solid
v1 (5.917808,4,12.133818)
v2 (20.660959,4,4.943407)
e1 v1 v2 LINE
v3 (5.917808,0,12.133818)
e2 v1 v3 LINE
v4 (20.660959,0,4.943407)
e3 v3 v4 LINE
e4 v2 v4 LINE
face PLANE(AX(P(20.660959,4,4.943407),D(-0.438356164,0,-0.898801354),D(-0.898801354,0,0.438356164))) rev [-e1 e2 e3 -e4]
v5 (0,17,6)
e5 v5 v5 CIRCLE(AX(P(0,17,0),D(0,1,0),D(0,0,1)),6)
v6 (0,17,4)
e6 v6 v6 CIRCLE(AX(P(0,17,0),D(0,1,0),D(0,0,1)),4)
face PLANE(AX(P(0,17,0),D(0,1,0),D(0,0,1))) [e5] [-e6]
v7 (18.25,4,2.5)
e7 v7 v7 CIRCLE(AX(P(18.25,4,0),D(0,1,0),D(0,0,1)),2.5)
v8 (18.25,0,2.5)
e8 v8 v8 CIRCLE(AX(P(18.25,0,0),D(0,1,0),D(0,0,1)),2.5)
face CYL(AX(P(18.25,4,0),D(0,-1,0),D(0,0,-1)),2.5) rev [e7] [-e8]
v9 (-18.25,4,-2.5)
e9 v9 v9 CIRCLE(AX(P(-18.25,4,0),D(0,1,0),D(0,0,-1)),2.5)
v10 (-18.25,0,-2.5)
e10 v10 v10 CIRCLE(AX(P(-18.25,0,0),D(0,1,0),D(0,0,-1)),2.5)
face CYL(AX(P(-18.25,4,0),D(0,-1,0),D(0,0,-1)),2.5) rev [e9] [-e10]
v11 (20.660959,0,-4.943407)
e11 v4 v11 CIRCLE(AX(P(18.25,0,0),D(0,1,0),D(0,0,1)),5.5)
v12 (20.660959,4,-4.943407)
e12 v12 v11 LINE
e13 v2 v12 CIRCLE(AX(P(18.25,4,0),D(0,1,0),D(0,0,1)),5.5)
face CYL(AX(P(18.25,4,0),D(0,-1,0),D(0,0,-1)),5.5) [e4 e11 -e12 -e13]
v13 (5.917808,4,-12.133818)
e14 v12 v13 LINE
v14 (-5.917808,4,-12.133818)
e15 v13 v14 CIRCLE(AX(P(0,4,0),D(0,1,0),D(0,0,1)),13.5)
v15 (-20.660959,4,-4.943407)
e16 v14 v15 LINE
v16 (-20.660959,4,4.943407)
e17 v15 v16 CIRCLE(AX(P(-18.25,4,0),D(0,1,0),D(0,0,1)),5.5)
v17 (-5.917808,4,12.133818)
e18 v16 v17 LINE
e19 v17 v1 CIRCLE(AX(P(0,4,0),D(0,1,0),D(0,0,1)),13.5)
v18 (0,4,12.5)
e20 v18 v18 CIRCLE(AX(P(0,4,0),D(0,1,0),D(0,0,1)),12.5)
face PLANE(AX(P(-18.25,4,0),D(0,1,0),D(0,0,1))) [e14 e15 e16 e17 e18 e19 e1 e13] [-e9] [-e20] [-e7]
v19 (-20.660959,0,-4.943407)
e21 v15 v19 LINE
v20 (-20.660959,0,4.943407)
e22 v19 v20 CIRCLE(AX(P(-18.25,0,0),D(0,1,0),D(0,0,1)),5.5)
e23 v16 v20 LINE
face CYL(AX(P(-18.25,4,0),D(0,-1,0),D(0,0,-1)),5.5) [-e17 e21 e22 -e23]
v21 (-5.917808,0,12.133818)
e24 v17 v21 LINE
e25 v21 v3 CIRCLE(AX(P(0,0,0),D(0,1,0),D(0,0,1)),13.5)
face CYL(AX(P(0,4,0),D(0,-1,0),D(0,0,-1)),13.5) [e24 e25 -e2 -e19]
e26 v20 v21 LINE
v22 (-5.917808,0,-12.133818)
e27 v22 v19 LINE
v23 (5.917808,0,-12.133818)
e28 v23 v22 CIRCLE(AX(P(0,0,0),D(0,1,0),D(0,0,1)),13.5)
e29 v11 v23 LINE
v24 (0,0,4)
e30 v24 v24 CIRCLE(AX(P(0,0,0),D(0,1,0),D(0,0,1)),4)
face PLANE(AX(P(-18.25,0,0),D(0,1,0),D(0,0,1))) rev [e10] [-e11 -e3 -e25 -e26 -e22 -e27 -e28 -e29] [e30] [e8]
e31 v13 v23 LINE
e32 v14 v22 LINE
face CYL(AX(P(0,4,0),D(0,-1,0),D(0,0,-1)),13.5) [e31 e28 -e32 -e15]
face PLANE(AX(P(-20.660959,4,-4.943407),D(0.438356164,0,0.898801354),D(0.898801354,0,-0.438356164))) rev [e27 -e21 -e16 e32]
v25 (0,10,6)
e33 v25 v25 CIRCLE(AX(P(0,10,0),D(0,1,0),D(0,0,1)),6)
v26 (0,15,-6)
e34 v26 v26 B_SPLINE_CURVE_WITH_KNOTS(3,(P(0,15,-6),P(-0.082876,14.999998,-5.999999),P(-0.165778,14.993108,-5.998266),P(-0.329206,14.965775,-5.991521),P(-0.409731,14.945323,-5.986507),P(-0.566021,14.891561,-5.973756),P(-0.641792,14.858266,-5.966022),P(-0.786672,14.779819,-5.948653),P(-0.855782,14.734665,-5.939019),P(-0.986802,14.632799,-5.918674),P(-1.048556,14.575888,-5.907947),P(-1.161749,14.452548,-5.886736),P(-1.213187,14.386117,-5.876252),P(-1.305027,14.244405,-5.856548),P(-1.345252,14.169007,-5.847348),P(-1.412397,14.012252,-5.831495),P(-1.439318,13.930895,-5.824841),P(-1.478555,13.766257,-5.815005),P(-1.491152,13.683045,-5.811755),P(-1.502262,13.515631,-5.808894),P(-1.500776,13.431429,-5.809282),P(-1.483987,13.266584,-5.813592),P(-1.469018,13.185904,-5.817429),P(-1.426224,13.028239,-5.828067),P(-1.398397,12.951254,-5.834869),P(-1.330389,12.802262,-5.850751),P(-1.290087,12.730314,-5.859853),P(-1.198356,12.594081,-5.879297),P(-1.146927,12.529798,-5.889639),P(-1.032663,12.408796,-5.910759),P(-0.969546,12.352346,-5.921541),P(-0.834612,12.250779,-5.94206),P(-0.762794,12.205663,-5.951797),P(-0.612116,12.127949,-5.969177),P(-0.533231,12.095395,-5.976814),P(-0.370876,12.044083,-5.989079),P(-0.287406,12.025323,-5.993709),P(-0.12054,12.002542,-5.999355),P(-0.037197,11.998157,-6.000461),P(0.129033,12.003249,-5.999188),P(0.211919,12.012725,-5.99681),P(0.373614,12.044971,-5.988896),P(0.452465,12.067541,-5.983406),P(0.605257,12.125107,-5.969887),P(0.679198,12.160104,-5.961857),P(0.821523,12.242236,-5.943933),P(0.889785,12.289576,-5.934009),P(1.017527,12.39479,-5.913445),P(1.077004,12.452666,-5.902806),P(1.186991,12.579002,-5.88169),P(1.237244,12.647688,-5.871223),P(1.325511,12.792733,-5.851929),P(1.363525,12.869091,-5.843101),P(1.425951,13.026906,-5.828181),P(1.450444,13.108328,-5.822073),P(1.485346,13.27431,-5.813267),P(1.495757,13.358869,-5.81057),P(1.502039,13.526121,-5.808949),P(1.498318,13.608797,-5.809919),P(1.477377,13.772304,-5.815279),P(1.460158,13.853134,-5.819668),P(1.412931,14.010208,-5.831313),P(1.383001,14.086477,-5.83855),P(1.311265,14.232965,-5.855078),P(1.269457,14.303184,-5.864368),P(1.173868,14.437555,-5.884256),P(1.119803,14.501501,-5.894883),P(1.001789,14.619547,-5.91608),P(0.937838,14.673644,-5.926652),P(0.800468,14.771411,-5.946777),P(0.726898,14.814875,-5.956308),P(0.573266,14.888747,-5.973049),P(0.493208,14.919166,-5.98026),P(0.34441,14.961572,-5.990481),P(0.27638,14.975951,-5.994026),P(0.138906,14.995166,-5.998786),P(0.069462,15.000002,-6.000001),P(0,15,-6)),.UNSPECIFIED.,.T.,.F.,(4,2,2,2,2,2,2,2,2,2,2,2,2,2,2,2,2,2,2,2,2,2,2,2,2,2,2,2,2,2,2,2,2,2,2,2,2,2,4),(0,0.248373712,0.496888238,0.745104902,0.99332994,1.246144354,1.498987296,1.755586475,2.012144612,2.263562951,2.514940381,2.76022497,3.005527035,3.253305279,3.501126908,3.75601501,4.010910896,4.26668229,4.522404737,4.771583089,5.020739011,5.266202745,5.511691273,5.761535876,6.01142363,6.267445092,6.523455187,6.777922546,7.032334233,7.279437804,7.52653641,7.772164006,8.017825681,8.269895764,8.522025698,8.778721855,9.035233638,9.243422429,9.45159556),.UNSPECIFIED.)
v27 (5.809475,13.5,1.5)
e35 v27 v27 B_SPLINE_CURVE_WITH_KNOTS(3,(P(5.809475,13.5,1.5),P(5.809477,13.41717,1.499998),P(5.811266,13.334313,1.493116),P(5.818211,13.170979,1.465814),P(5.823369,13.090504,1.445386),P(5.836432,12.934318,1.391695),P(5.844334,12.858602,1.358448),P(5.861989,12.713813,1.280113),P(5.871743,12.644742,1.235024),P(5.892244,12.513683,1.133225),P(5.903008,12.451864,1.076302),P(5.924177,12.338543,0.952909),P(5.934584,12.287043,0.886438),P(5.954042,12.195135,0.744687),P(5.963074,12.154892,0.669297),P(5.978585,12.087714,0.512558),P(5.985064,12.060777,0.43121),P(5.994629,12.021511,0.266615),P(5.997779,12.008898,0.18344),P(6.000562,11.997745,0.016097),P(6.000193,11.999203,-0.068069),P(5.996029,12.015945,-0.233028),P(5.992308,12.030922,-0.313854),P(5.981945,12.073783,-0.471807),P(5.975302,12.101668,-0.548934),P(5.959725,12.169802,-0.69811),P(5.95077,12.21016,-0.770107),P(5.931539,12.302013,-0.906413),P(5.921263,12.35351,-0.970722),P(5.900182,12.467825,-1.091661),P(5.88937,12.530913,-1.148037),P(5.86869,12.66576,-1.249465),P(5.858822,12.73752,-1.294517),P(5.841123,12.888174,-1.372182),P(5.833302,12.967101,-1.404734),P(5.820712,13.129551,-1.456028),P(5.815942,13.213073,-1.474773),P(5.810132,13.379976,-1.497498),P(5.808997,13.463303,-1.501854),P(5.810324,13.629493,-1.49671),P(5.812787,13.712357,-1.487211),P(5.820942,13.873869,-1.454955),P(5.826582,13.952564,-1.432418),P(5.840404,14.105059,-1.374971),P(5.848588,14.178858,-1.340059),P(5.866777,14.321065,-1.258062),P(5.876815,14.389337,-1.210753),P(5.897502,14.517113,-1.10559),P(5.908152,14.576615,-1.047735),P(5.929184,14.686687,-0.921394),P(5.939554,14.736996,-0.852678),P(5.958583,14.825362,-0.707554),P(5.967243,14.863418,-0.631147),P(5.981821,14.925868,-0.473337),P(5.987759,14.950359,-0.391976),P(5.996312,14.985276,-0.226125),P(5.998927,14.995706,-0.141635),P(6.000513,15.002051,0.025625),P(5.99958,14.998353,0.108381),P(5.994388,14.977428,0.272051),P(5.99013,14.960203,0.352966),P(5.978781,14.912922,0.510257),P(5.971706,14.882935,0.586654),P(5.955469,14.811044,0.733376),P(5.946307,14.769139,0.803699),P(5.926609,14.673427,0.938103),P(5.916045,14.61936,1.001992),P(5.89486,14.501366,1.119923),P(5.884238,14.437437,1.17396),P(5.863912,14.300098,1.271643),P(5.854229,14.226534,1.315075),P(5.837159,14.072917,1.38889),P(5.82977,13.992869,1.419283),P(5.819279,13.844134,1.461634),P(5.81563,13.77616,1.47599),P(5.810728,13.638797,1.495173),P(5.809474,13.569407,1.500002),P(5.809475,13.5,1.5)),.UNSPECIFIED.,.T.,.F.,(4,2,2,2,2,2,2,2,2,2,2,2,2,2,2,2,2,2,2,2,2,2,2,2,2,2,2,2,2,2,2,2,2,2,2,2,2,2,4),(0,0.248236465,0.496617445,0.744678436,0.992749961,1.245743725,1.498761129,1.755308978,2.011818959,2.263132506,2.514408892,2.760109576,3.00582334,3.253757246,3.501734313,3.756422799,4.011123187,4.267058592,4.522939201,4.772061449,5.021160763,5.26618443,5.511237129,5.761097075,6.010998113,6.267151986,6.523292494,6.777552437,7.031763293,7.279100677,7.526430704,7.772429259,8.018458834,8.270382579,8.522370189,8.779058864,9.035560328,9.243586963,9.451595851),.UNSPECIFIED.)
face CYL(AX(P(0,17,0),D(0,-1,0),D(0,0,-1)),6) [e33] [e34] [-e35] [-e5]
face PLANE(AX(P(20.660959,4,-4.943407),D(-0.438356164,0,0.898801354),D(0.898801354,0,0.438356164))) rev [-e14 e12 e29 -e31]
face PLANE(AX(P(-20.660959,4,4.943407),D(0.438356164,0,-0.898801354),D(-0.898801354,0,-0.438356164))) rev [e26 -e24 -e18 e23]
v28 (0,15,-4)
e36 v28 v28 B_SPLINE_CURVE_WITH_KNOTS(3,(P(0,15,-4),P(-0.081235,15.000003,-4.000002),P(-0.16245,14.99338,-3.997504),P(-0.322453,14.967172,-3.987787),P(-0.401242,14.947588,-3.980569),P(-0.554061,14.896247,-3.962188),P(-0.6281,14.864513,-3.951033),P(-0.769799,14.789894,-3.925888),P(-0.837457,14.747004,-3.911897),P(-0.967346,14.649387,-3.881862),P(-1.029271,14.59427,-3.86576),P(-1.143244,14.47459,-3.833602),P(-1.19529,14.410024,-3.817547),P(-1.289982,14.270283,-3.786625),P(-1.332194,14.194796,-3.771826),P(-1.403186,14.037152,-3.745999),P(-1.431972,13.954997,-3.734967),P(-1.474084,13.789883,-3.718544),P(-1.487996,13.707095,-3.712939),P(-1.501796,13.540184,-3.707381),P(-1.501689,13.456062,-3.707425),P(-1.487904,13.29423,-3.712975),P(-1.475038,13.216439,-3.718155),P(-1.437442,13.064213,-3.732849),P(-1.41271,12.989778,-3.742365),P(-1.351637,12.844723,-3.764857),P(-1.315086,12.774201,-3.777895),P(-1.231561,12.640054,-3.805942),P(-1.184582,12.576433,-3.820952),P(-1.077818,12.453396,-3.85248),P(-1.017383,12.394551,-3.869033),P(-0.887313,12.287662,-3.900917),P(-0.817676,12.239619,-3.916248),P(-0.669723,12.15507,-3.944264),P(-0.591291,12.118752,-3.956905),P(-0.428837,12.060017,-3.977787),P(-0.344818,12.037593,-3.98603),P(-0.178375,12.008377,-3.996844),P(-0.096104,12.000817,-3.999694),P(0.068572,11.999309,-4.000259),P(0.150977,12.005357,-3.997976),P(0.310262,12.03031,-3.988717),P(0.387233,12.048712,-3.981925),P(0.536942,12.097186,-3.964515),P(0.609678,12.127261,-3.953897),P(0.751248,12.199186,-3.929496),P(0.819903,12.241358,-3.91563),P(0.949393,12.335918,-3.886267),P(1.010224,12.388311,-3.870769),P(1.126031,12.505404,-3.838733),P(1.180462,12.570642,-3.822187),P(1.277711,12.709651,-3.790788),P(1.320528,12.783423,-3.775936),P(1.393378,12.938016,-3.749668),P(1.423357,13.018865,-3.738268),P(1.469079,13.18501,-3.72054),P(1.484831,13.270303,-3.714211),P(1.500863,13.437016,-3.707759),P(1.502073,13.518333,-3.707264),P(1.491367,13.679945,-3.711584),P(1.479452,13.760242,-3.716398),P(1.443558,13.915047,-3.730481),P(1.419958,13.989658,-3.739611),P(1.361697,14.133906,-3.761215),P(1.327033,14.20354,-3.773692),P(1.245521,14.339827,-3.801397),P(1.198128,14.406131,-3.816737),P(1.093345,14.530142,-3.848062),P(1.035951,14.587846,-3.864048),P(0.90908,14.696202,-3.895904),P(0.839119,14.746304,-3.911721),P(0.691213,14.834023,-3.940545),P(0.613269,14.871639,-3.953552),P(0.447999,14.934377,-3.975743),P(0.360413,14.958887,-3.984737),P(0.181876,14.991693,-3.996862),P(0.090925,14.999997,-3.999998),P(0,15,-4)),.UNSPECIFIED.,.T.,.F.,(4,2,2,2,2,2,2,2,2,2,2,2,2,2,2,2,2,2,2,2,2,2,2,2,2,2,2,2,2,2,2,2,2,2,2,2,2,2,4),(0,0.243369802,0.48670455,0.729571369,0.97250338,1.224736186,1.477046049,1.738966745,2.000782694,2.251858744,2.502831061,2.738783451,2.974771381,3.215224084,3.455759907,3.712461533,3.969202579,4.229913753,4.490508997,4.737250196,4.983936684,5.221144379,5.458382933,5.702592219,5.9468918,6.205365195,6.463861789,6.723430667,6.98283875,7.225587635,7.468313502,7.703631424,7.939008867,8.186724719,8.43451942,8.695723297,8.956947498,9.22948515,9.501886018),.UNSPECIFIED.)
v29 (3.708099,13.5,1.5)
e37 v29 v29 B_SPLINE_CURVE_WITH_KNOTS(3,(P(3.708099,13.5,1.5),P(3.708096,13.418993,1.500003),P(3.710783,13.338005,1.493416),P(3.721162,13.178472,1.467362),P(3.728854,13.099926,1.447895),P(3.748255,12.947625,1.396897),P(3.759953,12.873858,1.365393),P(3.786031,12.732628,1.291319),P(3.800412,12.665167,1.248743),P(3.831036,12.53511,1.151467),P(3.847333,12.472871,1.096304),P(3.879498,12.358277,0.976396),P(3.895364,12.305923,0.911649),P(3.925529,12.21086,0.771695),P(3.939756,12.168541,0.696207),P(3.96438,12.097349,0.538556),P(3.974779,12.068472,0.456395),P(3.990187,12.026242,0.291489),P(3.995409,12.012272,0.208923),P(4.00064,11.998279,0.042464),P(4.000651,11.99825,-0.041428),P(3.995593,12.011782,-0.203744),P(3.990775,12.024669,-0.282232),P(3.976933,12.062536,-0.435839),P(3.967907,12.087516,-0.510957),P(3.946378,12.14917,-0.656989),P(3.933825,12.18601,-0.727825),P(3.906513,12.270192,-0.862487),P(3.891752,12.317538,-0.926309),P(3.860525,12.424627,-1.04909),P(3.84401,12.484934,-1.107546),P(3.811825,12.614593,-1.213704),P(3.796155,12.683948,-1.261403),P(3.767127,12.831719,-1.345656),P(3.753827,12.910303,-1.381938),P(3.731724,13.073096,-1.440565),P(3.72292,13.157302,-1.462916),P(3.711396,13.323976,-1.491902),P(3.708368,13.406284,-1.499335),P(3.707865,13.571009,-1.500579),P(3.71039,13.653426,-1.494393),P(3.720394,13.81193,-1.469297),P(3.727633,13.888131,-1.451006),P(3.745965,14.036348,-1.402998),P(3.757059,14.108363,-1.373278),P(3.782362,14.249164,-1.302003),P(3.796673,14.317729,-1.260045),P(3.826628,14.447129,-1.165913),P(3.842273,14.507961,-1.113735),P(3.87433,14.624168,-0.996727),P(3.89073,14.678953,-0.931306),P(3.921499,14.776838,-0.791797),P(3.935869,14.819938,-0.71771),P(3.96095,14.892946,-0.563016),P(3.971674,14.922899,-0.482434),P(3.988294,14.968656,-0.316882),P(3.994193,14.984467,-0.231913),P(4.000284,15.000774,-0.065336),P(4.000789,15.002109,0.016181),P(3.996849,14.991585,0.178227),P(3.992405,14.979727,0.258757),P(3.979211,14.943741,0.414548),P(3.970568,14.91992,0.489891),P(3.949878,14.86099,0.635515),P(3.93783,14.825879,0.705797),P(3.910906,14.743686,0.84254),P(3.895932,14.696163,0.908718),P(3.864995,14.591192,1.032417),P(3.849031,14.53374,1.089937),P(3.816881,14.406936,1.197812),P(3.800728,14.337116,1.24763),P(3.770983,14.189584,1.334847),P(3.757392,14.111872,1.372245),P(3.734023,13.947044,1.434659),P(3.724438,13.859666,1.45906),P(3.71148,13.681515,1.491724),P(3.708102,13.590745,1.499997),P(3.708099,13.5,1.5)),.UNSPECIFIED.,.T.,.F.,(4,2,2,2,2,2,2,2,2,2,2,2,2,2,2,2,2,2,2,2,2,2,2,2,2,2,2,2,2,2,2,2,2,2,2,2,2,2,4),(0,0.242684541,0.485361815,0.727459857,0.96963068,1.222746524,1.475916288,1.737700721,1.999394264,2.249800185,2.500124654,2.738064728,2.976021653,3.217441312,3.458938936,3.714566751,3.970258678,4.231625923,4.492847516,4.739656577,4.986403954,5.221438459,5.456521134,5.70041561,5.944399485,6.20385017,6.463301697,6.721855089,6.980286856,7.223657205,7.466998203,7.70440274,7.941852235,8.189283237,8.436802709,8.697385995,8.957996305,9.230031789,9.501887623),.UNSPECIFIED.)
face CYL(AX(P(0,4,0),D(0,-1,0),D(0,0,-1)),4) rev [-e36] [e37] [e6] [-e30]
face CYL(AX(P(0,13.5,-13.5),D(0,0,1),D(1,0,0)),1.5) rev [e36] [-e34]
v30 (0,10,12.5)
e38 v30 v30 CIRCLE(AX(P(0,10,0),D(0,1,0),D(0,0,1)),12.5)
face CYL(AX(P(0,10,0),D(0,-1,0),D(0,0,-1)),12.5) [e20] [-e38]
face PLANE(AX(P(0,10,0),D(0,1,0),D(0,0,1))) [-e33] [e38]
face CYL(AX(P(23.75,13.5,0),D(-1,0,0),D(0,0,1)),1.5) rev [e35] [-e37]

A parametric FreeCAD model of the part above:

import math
import FreeCAD as App
import Part
import Sketcher

V = App.Vector
Q = App.Units.Quantity

doc = App.newDocument("Part")
params = doc.addObject("Spreadsheet::Sheet", "Params")
for row, (alias, value) in enumerate([
    ("sketch1_diameter", "5 mm"),
    ("sketch1_diameter2", "8 mm"),
    ("sketch1_radius", "5.5 mm"),
    ("sketch1_radius2", "13.5 mm"),
    ("pad1_length", "4 mm"),
    ("sketch2_diameter", "25 mm"),
    ("sketch2_diameter2", "8 mm"),
    ("pad2_length", "6 mm"),
    ("sketch3_diameter", "12 mm"),
    ("sketch3_diameter2", "8 mm"),
    ("pad3_length", "7 mm"),
    ("sketch4_diameter", "3 mm"),
], start=1):
    params.set(f"A{row}", alias)
    params.set(f"B{row}", "=" + value)
    params.setAlias(f"B{row}", alias)

body = doc.addObject("PartDesign::Body", "Body")

# Sketch on XZ plane
sketch1 = body.newObject("Sketcher::SketchObject", "Sketch")
sketch1.AttachmentSupport = (doc.getObject("XZ_Plane"), [""])
sketch1.MapMode = "FlatFace"
sketch1.addGeometry([
    Part.LineSegment(V(-5.9, -12.1, 0), V(-20.7, -4.9, 0)),  # 0
    Part.ArcOfCircle(Part.Circle(V(-18.2, 0, 0), V(0, 0, 1), 5.5), math.radians(116), math.radians(244)),  # 1
    Part.LineSegment(V(-20.7, 4.9, 0), V(-5.9, 12.1, 0)),  # 2
    Part.ArcOfCircle(Part.Circle(V(0, 0, 0), V(0, 0, 1), 13.5), math.radians(64), math.radians(116)),  # 3
    Part.LineSegment(V(5.9, 12.1, 0), V(20.7, 4.9, 0)),  # 4
    Part.ArcOfCircle(Part.Circle(V(18.2, 0, 0), V(0, 0, 1), 5.5), math.radians(-64), math.radians(64)),  # 5
    Part.LineSegment(V(20.7, -4.9, 0), V(5.9, -12.1, 0)),  # 6
    Part.ArcOfCircle(Part.Circle(V(0, 0, 0), V(0, 0, 1), 13.5), math.radians(-116), math.radians(-64)),  # 7
    Part.Circle(V(18.2, 0, 0), V(0, 0, 1), 2.5),  # 8
    Part.Circle(V(0, 0, 0), V(0, 0, 1), 4),  # 9
    Part.Circle(V(-18.2, 0, 0), V(0, 0, 1), 2.5),  # 10
], False)
sketch1.addConstraint([
    Sketcher.Constraint("Tangent", 0, 2, 1, 2),
    Sketcher.Constraint("Tangent", 1, 1, 2, 1),
    Sketcher.Constraint("Tangent", 2, 2, 3, 2),
    Sketcher.Constraint("Tangent", 3, 1, 4, 1),
    Sketcher.Constraint("Tangent", 4, 2, 5, 2),
    Sketcher.Constraint("Tangent", 5, 1, 6, 1),
    Sketcher.Constraint("Tangent", 6, 2, 7, 2),
    Sketcher.Constraint("Tangent", 7, 1, 0, 1),
    Sketcher.Constraint("Coincident", 3, 3, -1, 1),
    Sketcher.Constraint("Coincident", 7, 3, -1, 1),
    Sketcher.Constraint("Coincident", 9, 3, -1, 1),
    Sketcher.Constraint("Coincident", 8, 3, 5, 3),
    Sketcher.Constraint("Coincident", 10, 3, 1, 3),
    Sketcher.Constraint("Equal", 1, 5),
    Sketcher.Constraint("Equal", 3, 7),
    Sketcher.Constraint("Equal", 8, 10),
    Sketcher.Constraint("Symmetric", 1, 3, 5, 3, -1, 1),
    Sketcher.Constraint("PointOnObject", 1, 3, -1),
    Sketcher.Constraint("Diameter", 8, Q("5 mm")),
    Sketcher.Constraint("Diameter", 9, Q("8 mm")),
    Sketcher.Constraint("Radius", 1, Q("5.5 mm")),
    Sketcher.Constraint("Radius", 3, Q("13.5 mm")),
    Sketcher.Constraint("DistanceX", 1, 3, 5, 3, Q("36.5 mm")),
])
sketch1.setExpression("Constraints[18]", "Params.sketch1_diameter")
sketch1.setExpression("Constraints[19]", "Params.sketch1_diameter2")
sketch1.setExpression("Constraints[20]", "Params.sketch1_radius")
sketch1.setExpression("Constraints[21]", "Params.sketch1_radius2")
pad1 = body.newObject("PartDesign::Pad", "Pad")
pad1.Profile = sketch1
pad1.setExpression("Length", "Params.pad1_length")
pad1.Reversed = True

# Sketch on XZ plane
sketch2 = body.newObject("Sketcher::SketchObject", "Sketch001")
sketch2.AttachmentSupport = (doc.getObject("XZ_Plane"), [""])
sketch2.MapMode = "FlatFace"
sketch2.AttachmentOffset = App.Placement(V(0, 0, -4), App.Rotation())
sketch2.addGeometry([
    Part.Circle(V(0, 0, 0), V(0, 0, 1), 12.5),
    Part.Circle(V(0, 0, 0), V(0, 0, 1), 4),
], False)
sketch2.addConstraint([
    Sketcher.Constraint("Coincident", 0, 3, -1, 1),
    Sketcher.Constraint("Coincident", 1, 3, -1, 1),
    Sketcher.Constraint("Diameter", 0, Q("25 mm")),
    Sketcher.Constraint("Diameter", 1, Q("8 mm")),
])
sketch2.setExpression("Constraints[2]", "Params.sketch2_diameter")
sketch2.setExpression("Constraints[3]", "Params.sketch2_diameter2")
pad2 = body.newObject("PartDesign::Pad", "Pad001")
pad2.Profile = sketch2
pad2.setExpression("Length", "Params.pad2_length")
pad2.Reversed = True

# Sketch on XZ plane
sketch3 = body.newObject("Sketcher::SketchObject", "Sketch002")
sketch3.AttachmentSupport = (doc.getObject("XZ_Plane"), [""])
sketch3.MapMode = "FlatFace"
sketch3.AttachmentOffset = App.Placement(V(0, 0, -10), App.Rotation())
sketch3.addGeometry([
    Part.Circle(V(0, 0, 0), V(0, 0, 1), 6),
    Part.Circle(V(0, 0, 0), V(0, 0, 1), 4),
], False)
sketch3.addConstraint([
    Sketcher.Constraint("Coincident", 0, 3, -1, 1),
    Sketcher.Constraint("Coincident", 1, 3, -1, 1),
    Sketcher.Constraint("Diameter", 0, Q("12 mm")),
    Sketcher.Constraint("Diameter", 1, Q("8 mm")),
])
sketch3.setExpression("Constraints[2]", "Params.sketch3_diameter")
sketch3.setExpression("Constraints[3]", "Params.sketch3_diameter2")
pad3 = body.newObject("PartDesign::Pad", "Pad002")
pad3.Profile = sketch3
pad3.setExpression("Length", "Params.pad3_length")
pad3.Reversed = True

# Sketch on XY plane
sketch4 = body.newObject("Sketcher::SketchObject", "Sketch003")
sketch4.AttachmentSupport = (doc.getObject("XY_Plane"), [""])
sketch4.MapMode = "FlatFace"
sketch4.addGeometry(Part.Circle(V(0, 13.5, 0), V(0, 0, 1), 1.5), False)
sketch4.addConstraint([
    Sketcher.Constraint("PointOnObject", 0, 3, -2),
    Sketcher.Constraint("Diameter", 0, Q("3 mm")),
    Sketcher.Constraint("DistanceY", -1, 1, 0, 3, Q("13.5 mm")),
])
sketch4.setExpression("Constraints[1]", "Params.sketch4_diameter")
pocket1 = body.newObject("PartDesign::Pocket", "Pocket")
pocket1.Profile = sketch4
pocket1.Type = "ThroughAll"
doc.recompute()

datumplane = body.newObject("PartDesign::Plane", "DatumPlane")
datumplane.Placement = App.Placement(V(0, 0, 0), App.Rotation(V(-0.707106781, 0, 0.707106781), V(0, -1, 0), V(0.707106781, 0, 0.707106781), "ZXY"))
mirrored = body.newObject("PartDesign::Mirrored", "Mirrored")
mirrored.Originals = [pocket1]
mirrored.MirrorPlane = (datumplane, [""])
body.Tip = mirrored

doc.recompute()
